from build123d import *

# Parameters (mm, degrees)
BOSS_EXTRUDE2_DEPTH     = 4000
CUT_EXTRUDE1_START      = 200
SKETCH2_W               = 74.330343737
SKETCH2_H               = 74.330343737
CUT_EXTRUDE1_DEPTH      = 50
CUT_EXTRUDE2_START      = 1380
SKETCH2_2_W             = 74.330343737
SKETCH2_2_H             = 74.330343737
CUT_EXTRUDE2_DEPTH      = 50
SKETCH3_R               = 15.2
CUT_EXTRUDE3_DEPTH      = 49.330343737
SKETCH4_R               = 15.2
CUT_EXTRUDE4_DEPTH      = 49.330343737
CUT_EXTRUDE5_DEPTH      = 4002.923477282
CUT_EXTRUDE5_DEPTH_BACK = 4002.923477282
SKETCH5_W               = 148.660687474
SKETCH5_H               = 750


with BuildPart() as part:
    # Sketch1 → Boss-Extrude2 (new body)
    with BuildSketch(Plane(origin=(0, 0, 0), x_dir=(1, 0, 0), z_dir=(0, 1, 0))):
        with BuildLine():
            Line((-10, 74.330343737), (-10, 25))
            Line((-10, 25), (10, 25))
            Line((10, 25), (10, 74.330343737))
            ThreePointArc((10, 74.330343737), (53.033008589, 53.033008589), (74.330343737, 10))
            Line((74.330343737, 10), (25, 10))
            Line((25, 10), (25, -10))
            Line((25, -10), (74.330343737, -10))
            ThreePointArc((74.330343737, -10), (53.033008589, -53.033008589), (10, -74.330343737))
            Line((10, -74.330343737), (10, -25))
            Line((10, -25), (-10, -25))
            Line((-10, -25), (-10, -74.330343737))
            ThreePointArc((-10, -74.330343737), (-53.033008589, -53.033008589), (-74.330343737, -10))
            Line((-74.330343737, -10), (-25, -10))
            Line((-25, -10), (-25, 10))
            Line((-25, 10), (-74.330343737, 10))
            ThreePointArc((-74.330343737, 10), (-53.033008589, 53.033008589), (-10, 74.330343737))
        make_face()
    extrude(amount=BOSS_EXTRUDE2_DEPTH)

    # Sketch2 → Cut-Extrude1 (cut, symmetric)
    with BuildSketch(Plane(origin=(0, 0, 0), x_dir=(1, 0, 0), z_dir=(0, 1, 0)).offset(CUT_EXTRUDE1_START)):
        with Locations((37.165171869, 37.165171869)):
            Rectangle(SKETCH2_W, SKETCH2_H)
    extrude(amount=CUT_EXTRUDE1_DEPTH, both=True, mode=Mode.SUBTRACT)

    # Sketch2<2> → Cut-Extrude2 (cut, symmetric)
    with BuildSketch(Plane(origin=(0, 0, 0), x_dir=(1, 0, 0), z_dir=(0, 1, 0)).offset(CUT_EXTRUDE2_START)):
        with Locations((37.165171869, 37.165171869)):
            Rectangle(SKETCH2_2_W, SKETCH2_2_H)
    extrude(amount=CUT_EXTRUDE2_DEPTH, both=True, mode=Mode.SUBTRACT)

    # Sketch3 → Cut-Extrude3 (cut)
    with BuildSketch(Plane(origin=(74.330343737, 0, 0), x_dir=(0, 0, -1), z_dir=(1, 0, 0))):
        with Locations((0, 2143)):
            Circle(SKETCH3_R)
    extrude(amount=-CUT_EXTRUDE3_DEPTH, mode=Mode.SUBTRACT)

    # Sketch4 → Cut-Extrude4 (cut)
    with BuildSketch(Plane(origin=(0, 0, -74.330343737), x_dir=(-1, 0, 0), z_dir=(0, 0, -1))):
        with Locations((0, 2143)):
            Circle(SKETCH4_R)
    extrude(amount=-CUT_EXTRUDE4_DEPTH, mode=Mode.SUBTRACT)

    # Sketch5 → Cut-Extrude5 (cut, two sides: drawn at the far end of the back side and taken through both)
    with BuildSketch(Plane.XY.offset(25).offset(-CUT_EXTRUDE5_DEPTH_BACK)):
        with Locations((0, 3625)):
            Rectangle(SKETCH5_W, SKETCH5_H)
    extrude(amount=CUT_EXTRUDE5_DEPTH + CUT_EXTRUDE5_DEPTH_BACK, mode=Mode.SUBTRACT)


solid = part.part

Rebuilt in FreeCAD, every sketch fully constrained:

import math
import FreeCAD as App
import Part
import Sketcher


def add_polygon(sketch, points):
    """Adds a closed chain of lines whose ends are joined by coincident constraints."""
    first, n = sketch.GeometryCount, len(points)
    for a, b in zip(points, points[1:] + points[:1]):
        sketch.addGeometry(Part.LineSegment(App.Vector(*a, 0), App.Vector(*b, 0)), False)
    for i in range(n):
        sketch.addConstraint(Sketcher.Constraint("Coincident", first + i, 2, first + (i + 1) % n, 1))

doc = App.newDocument("Part")
body = doc.addObject("PartDesign::Body", "Body")

# Sketch on XZ plane
sketch1 = doc.addObject("Sketcher::SketchObject", "Sketch")
body.addObject(sketch1)
sketch1.AttachmentSupport = (doc.XZ_Plane, [""])
sketch1.MapMode = "FlatFace"
sketch1.addGeometry([
    Part.LineSegment(App.Vector(-10, -25, 0), App.Vector(-10, -74, 0)),  # 0
    Part.ArcOfCircle(Part.Circle(App.Vector(0, 0, 0), App.Vector(0, 0, 1), 75), math.radians(-172), math.radians(-98)),  # 1
    Part.LineSegment(App.Vector(-74, -10, 0), App.Vector(-25, -10, 0)),  # 2
    Part.LineSegment(App.Vector(-25, -10, 0), App.Vector(-25, 10, 0)),  # 3
    Part.LineSegment(App.Vector(-25, 10, 0), App.Vector(-74, 10, 0)),  # 4
    Part.ArcOfCircle(Part.Circle(App.Vector(0, 0, 0), App.Vector(0, 0, 1), 75), math.radians(98), math.radians(172)),  # 5
    Part.LineSegment(App.Vector(-10, 74, 0), App.Vector(-10, 25, 0)),  # 6
    Part.LineSegment(App.Vector(-10, 25, 0), App.Vector(10, 25, 0)),  # 7
    Part.LineSegment(App.Vector(10, 25, 0), App.Vector(10, 74, 0)),  # 8
    Part.ArcOfCircle(Part.Circle(App.Vector(0, 0, 0), App.Vector(0, 0, 1), 75), math.radians(8), math.radians(82)),  # 9
    Part.LineSegment(App.Vector(74, 10, 0), App.Vector(25, 10, 0)),  # 10
    Part.LineSegment(App.Vector(25, 10, 0), App.Vector(25, -10, 0)),  # 11
    Part.LineSegment(App.Vector(25, -10, 0), App.Vector(74, -10, 0)),  # 12
    Part.ArcOfCircle(Part.Circle(App.Vector(0, 0, 0), App.Vector(0, 0, 1), 75), math.radians(-82), math.radians(-8)),  # 13
    Part.LineSegment(App.Vector(10, -74, 0), App.Vector(10, -25, 0)),  # 14
    Part.LineSegment(App.Vector(10, -25, 0), App.Vector(-10, -25, 0)),  # 15
], False)
sketch1.addConstraint([
    Sketcher.Constraint("Coincident", 0, 2, 1, 2),
    Sketcher.Constraint("Coincident", 1, 1, 2, 1),
    Sketcher.Constraint("Coincident", 2, 2, 3, 1),
    Sketcher.Constraint("Coincident", 3, 2, 4, 1),
    Sketcher.Constraint("Coincident", 4, 2, 5, 2),
    Sketcher.Constraint("Coincident", 5, 1, 6, 1),
    Sketcher.Constraint("Coincident", 6, 2, 7, 1),
    Sketcher.Constraint("Coincident", 7, 2, 8, 1),
    Sketcher.Constraint("Coincident", 8, 2, 9, 2),
    Sketcher.Constraint("Coincident", 9, 1, 10, 1),
    Sketcher.Constraint("Coincident", 10, 2, 11, 1),
    Sketcher.Constraint("Coincident", 11, 2, 12, 1),
    Sketcher.Constraint("Coincident", 12, 2, 13, 2),
    Sketcher.Constraint("Coincident", 13, 1, 14, 1),
    Sketcher.Constraint("Coincident", 14, 2, 15, 1),
    Sketcher.Constraint("Coincident", 15, 2, 0, 1),
    Sketcher.Constraint("Vertical", 0),
    Sketcher.Constraint("Horizontal", 2),
    Sketcher.Constraint("Vertical", 3),
    Sketcher.Constraint("Horizontal", 4),
    Sketcher.Constraint("Vertical", 6),
    Sketcher.Constraint("Horizontal", 7),
    Sketcher.Constraint("Vertical", 8),
    Sketcher.Constraint("Horizontal", 10),
    Sketcher.Constraint("Vertical", 11),
    Sketcher.Constraint("Horizontal", 12),
    Sketcher.Constraint("Vertical", 14),
    Sketcher.Constraint("Horizontal", 15),
    Sketcher.Constraint("Coincident", 1, 3, -1, 1),
    Sketcher.Constraint("Coincident", 5, 3, -1, 1),
    Sketcher.Constraint("Coincident", 9, 3, -1, 1),
    Sketcher.Constraint("Coincident", 13, 3, -1, 1),
    Sketcher.Constraint("Equal", 1, 5),
    Sketcher.Constraint("Equal", 5, 9),
    Sketcher.Constraint("Equal", 9, 13),
    Sketcher.Constraint("Symmetric", 2, 2, 10, 2, -1, 1),
    Sketcher.Constraint("Symmetric", 6, 2, 14, 2, -1, 1),
    Sketcher.Constraint("Horizontal", 5, 1, 8, 2),
    Sketcher.Constraint("Horizontal", 4, 2, 9, 1),
    Sketcher.Constraint("Horizontal", 2, 2, 11, 2),
    Sketcher.Constraint("Horizontal", 0, 2, 13, 1),
    Sketcher.Constraint("Equal", 12, 0),
    Sketcher.Constraint("Equal", 15, 3),
    Sketcher.Constraint("Radius", 1, 75.0),
    Sketcher.Constraint("DistanceX", 7, 1, 7, 2, 20.0),
    Sketcher.Constraint("DistanceX", 2, 2, -1, 1, 25.0),
])
pad1 = doc.addObject("PartDesign::Pad", "Pad")
body.addObject(pad1)
pad1.Profile = sketch1
pad1.Length = 4000
pad1.Reversed = True

# Sketch on XZ plane
sketch2 = doc.addObject("Sketcher::SketchObject", "Sketch001")
body.addObject(sketch2)
sketch2.AttachmentSupport = (doc.XZ_Plane, [""])
sketch2.MapMode = "FlatFace"
sketch2.AttachmentOffset = App.Placement(App.Vector(0, 0, -200), App.Rotation())
add_polygon(sketch2, [(0, -74), (0, 0), (74, 0), (74, -74)])  # lines 0-3
sketch2.addConstraint([
    Sketcher.Constraint("Vertical", 0),
    Sketcher.Constraint("Horizontal", 1),
    Sketcher.Constraint("Vertical", 2),
    Sketcher.Constraint("Horizontal", 3),
    Sketcher.Constraint("Coincident", 0, 2, -1, 1),
    Sketcher.Constraint("Equal", 3, 0),
    Sketcher.Constraint("DistanceX", 1, 1, 1, 2, 74.330344),
])
pocket1 = doc.addObject("PartDesign::Pocket", "Pocket")
body.addObject(pocket1)
pocket1.Profile = sketch2
pocket1.Length = 100
pocket1.Midplane = True

# Sketch on XZ plane
sketch3 = doc.addObject("Sketcher::SketchObject", "Sketch002")
body.addObject(sketch3)
sketch3.AttachmentSupport = (doc.XZ_Plane, [""])
sketch3.MapMode = "FlatFace"
sketch3.AttachmentOffset = App.Placement(App.Vector(0, 0, -1380), App.Rotation())
add_polygon(sketch3, [(0, -74), (0, 0), (74, 0), (74, -74)])  # lines 0-3
sketch3.addConstraint([
    Sketcher.Constraint("Vertical", 0),
    Sketcher.Constraint("Horizontal", 1),
    Sketcher.Constraint("Vertical", 2),
    Sketcher.Constraint("Horizontal", 3),
    Sketcher.Constraint("Coincident", 0, 2, -1, 1),
    Sketcher.Constraint("Equal", 3, 0),
    Sketcher.Constraint("DistanceX", 1, 1, 1, 2, 74.330344),
])
pocket2 = doc.addObject("PartDesign::Pocket", "Pocket001")
body.addObject(pocket2)
pocket2.Profile = sketch3
pocket2.Length = 100
pocket2.Midplane = True

# Sketch on YZ plane
sketch4 = doc.addObject("Sketcher::SketchObject", "Sketch003")
body.addObject(sketch4)
sketch4.AttachmentSupport = (doc.YZ_Plane, [""])
sketch4.MapMode = "FlatFace"
sketch4.AttachmentOffset = App.Placement(App.Vector(0, 0, 74.330344), App.Rotation())
sketch4.addGeometry(Part.Circle(App.Vector(2143, 0, 0), App.Vector(0, 0, 1), 15), False)
sketch4.addConstraint([
    Sketcher.Constraint("PointOnObject", 0, 3, -1),
    Sketcher.Constraint("Diameter", 0, 30.4),
    Sketcher.Constraint("DistanceX", -1, 1, 0, 3, 2143.0),
])
pocket3 = doc.addObject("PartDesign::Pocket", "Pocket002")
body.addObject(pocket3)
pocket3.Profile = sketch4
pocket3.Length = 49.330344

# Sketch on XY plane
sketch5 = doc.addObject("Sketcher::SketchObject", "Sketch004")
body.addObject(sketch5)
sketch5.AttachmentSupport = (doc.XY_Plane, [""])
sketch5.MapMode = "FlatFace"
sketch5.AttachmentOffset = App.Placement(App.Vector(0, 0, -74.330344), App.Rotation())
sketch5.addGeometry(Part.Circle(App.Vector(0, 2143, 0), App.Vector(0, 0, 1), 15), False)
sketch5.addConstraint([
    Sketcher.Constraint("PointOnObject", 0, 3, -2),
    Sketcher.Constraint("Diameter", 0, 30.4),
    Sketcher.Constraint("DistanceY", -1, 1, 0, 3, 2143.0),
])
pocket4 = doc.addObject("PartDesign::Pocket", "Pocket003")
body.addObject(pocket4)
pocket4.Profile = sketch5
pocket4.Length = 49.330344
pocket4.Reversed = True

# Sketch on XY plane
sketch6 = doc.addObject("Sketcher::SketchObject", "Sketch005")
body.addObject(sketch6)
sketch6.AttachmentSupport = (doc.XY_Plane, [""])
sketch6.MapMode = "FlatFace"
sketch6.AttachmentOffset = App.Placement(App.Vector(0, 0, 25), App.Rotation())
add_polygon(sketch6, [(-74, 4000), (-74, 3250), (74, 3250), (74, 4000)])  # lines 0-3
sketch6.addConstraint([
    Sketcher.Constraint("Vertical", 0),
    Sketcher.Constraint("Horizontal", 1),
    Sketcher.Constraint("Vertical", 2),
    Sketcher.Constraint("Horizontal", 3),
    Sketcher.Constraint("DistanceY", 0, 2, 0, 1, 750.0),
    Sketcher.Constraint("DistanceY", -1, 1, 0, 2, 3250.0),
    Sketcher.Constraint("DistanceX", 1, 1, 1, 2, 148.660687),
    Sketcher.Constraint("DistanceX", 0, 2, -1, 1, 74.330344),
])
pocket5 = doc.addObject("PartDesign::Pocket", "Pocket004")
body.addObject(pocket5)
pocket5.Profile = sketch6
pocket5.Type = "ThroughAll"
pocket5.Midplane = True

doc.recompute()
